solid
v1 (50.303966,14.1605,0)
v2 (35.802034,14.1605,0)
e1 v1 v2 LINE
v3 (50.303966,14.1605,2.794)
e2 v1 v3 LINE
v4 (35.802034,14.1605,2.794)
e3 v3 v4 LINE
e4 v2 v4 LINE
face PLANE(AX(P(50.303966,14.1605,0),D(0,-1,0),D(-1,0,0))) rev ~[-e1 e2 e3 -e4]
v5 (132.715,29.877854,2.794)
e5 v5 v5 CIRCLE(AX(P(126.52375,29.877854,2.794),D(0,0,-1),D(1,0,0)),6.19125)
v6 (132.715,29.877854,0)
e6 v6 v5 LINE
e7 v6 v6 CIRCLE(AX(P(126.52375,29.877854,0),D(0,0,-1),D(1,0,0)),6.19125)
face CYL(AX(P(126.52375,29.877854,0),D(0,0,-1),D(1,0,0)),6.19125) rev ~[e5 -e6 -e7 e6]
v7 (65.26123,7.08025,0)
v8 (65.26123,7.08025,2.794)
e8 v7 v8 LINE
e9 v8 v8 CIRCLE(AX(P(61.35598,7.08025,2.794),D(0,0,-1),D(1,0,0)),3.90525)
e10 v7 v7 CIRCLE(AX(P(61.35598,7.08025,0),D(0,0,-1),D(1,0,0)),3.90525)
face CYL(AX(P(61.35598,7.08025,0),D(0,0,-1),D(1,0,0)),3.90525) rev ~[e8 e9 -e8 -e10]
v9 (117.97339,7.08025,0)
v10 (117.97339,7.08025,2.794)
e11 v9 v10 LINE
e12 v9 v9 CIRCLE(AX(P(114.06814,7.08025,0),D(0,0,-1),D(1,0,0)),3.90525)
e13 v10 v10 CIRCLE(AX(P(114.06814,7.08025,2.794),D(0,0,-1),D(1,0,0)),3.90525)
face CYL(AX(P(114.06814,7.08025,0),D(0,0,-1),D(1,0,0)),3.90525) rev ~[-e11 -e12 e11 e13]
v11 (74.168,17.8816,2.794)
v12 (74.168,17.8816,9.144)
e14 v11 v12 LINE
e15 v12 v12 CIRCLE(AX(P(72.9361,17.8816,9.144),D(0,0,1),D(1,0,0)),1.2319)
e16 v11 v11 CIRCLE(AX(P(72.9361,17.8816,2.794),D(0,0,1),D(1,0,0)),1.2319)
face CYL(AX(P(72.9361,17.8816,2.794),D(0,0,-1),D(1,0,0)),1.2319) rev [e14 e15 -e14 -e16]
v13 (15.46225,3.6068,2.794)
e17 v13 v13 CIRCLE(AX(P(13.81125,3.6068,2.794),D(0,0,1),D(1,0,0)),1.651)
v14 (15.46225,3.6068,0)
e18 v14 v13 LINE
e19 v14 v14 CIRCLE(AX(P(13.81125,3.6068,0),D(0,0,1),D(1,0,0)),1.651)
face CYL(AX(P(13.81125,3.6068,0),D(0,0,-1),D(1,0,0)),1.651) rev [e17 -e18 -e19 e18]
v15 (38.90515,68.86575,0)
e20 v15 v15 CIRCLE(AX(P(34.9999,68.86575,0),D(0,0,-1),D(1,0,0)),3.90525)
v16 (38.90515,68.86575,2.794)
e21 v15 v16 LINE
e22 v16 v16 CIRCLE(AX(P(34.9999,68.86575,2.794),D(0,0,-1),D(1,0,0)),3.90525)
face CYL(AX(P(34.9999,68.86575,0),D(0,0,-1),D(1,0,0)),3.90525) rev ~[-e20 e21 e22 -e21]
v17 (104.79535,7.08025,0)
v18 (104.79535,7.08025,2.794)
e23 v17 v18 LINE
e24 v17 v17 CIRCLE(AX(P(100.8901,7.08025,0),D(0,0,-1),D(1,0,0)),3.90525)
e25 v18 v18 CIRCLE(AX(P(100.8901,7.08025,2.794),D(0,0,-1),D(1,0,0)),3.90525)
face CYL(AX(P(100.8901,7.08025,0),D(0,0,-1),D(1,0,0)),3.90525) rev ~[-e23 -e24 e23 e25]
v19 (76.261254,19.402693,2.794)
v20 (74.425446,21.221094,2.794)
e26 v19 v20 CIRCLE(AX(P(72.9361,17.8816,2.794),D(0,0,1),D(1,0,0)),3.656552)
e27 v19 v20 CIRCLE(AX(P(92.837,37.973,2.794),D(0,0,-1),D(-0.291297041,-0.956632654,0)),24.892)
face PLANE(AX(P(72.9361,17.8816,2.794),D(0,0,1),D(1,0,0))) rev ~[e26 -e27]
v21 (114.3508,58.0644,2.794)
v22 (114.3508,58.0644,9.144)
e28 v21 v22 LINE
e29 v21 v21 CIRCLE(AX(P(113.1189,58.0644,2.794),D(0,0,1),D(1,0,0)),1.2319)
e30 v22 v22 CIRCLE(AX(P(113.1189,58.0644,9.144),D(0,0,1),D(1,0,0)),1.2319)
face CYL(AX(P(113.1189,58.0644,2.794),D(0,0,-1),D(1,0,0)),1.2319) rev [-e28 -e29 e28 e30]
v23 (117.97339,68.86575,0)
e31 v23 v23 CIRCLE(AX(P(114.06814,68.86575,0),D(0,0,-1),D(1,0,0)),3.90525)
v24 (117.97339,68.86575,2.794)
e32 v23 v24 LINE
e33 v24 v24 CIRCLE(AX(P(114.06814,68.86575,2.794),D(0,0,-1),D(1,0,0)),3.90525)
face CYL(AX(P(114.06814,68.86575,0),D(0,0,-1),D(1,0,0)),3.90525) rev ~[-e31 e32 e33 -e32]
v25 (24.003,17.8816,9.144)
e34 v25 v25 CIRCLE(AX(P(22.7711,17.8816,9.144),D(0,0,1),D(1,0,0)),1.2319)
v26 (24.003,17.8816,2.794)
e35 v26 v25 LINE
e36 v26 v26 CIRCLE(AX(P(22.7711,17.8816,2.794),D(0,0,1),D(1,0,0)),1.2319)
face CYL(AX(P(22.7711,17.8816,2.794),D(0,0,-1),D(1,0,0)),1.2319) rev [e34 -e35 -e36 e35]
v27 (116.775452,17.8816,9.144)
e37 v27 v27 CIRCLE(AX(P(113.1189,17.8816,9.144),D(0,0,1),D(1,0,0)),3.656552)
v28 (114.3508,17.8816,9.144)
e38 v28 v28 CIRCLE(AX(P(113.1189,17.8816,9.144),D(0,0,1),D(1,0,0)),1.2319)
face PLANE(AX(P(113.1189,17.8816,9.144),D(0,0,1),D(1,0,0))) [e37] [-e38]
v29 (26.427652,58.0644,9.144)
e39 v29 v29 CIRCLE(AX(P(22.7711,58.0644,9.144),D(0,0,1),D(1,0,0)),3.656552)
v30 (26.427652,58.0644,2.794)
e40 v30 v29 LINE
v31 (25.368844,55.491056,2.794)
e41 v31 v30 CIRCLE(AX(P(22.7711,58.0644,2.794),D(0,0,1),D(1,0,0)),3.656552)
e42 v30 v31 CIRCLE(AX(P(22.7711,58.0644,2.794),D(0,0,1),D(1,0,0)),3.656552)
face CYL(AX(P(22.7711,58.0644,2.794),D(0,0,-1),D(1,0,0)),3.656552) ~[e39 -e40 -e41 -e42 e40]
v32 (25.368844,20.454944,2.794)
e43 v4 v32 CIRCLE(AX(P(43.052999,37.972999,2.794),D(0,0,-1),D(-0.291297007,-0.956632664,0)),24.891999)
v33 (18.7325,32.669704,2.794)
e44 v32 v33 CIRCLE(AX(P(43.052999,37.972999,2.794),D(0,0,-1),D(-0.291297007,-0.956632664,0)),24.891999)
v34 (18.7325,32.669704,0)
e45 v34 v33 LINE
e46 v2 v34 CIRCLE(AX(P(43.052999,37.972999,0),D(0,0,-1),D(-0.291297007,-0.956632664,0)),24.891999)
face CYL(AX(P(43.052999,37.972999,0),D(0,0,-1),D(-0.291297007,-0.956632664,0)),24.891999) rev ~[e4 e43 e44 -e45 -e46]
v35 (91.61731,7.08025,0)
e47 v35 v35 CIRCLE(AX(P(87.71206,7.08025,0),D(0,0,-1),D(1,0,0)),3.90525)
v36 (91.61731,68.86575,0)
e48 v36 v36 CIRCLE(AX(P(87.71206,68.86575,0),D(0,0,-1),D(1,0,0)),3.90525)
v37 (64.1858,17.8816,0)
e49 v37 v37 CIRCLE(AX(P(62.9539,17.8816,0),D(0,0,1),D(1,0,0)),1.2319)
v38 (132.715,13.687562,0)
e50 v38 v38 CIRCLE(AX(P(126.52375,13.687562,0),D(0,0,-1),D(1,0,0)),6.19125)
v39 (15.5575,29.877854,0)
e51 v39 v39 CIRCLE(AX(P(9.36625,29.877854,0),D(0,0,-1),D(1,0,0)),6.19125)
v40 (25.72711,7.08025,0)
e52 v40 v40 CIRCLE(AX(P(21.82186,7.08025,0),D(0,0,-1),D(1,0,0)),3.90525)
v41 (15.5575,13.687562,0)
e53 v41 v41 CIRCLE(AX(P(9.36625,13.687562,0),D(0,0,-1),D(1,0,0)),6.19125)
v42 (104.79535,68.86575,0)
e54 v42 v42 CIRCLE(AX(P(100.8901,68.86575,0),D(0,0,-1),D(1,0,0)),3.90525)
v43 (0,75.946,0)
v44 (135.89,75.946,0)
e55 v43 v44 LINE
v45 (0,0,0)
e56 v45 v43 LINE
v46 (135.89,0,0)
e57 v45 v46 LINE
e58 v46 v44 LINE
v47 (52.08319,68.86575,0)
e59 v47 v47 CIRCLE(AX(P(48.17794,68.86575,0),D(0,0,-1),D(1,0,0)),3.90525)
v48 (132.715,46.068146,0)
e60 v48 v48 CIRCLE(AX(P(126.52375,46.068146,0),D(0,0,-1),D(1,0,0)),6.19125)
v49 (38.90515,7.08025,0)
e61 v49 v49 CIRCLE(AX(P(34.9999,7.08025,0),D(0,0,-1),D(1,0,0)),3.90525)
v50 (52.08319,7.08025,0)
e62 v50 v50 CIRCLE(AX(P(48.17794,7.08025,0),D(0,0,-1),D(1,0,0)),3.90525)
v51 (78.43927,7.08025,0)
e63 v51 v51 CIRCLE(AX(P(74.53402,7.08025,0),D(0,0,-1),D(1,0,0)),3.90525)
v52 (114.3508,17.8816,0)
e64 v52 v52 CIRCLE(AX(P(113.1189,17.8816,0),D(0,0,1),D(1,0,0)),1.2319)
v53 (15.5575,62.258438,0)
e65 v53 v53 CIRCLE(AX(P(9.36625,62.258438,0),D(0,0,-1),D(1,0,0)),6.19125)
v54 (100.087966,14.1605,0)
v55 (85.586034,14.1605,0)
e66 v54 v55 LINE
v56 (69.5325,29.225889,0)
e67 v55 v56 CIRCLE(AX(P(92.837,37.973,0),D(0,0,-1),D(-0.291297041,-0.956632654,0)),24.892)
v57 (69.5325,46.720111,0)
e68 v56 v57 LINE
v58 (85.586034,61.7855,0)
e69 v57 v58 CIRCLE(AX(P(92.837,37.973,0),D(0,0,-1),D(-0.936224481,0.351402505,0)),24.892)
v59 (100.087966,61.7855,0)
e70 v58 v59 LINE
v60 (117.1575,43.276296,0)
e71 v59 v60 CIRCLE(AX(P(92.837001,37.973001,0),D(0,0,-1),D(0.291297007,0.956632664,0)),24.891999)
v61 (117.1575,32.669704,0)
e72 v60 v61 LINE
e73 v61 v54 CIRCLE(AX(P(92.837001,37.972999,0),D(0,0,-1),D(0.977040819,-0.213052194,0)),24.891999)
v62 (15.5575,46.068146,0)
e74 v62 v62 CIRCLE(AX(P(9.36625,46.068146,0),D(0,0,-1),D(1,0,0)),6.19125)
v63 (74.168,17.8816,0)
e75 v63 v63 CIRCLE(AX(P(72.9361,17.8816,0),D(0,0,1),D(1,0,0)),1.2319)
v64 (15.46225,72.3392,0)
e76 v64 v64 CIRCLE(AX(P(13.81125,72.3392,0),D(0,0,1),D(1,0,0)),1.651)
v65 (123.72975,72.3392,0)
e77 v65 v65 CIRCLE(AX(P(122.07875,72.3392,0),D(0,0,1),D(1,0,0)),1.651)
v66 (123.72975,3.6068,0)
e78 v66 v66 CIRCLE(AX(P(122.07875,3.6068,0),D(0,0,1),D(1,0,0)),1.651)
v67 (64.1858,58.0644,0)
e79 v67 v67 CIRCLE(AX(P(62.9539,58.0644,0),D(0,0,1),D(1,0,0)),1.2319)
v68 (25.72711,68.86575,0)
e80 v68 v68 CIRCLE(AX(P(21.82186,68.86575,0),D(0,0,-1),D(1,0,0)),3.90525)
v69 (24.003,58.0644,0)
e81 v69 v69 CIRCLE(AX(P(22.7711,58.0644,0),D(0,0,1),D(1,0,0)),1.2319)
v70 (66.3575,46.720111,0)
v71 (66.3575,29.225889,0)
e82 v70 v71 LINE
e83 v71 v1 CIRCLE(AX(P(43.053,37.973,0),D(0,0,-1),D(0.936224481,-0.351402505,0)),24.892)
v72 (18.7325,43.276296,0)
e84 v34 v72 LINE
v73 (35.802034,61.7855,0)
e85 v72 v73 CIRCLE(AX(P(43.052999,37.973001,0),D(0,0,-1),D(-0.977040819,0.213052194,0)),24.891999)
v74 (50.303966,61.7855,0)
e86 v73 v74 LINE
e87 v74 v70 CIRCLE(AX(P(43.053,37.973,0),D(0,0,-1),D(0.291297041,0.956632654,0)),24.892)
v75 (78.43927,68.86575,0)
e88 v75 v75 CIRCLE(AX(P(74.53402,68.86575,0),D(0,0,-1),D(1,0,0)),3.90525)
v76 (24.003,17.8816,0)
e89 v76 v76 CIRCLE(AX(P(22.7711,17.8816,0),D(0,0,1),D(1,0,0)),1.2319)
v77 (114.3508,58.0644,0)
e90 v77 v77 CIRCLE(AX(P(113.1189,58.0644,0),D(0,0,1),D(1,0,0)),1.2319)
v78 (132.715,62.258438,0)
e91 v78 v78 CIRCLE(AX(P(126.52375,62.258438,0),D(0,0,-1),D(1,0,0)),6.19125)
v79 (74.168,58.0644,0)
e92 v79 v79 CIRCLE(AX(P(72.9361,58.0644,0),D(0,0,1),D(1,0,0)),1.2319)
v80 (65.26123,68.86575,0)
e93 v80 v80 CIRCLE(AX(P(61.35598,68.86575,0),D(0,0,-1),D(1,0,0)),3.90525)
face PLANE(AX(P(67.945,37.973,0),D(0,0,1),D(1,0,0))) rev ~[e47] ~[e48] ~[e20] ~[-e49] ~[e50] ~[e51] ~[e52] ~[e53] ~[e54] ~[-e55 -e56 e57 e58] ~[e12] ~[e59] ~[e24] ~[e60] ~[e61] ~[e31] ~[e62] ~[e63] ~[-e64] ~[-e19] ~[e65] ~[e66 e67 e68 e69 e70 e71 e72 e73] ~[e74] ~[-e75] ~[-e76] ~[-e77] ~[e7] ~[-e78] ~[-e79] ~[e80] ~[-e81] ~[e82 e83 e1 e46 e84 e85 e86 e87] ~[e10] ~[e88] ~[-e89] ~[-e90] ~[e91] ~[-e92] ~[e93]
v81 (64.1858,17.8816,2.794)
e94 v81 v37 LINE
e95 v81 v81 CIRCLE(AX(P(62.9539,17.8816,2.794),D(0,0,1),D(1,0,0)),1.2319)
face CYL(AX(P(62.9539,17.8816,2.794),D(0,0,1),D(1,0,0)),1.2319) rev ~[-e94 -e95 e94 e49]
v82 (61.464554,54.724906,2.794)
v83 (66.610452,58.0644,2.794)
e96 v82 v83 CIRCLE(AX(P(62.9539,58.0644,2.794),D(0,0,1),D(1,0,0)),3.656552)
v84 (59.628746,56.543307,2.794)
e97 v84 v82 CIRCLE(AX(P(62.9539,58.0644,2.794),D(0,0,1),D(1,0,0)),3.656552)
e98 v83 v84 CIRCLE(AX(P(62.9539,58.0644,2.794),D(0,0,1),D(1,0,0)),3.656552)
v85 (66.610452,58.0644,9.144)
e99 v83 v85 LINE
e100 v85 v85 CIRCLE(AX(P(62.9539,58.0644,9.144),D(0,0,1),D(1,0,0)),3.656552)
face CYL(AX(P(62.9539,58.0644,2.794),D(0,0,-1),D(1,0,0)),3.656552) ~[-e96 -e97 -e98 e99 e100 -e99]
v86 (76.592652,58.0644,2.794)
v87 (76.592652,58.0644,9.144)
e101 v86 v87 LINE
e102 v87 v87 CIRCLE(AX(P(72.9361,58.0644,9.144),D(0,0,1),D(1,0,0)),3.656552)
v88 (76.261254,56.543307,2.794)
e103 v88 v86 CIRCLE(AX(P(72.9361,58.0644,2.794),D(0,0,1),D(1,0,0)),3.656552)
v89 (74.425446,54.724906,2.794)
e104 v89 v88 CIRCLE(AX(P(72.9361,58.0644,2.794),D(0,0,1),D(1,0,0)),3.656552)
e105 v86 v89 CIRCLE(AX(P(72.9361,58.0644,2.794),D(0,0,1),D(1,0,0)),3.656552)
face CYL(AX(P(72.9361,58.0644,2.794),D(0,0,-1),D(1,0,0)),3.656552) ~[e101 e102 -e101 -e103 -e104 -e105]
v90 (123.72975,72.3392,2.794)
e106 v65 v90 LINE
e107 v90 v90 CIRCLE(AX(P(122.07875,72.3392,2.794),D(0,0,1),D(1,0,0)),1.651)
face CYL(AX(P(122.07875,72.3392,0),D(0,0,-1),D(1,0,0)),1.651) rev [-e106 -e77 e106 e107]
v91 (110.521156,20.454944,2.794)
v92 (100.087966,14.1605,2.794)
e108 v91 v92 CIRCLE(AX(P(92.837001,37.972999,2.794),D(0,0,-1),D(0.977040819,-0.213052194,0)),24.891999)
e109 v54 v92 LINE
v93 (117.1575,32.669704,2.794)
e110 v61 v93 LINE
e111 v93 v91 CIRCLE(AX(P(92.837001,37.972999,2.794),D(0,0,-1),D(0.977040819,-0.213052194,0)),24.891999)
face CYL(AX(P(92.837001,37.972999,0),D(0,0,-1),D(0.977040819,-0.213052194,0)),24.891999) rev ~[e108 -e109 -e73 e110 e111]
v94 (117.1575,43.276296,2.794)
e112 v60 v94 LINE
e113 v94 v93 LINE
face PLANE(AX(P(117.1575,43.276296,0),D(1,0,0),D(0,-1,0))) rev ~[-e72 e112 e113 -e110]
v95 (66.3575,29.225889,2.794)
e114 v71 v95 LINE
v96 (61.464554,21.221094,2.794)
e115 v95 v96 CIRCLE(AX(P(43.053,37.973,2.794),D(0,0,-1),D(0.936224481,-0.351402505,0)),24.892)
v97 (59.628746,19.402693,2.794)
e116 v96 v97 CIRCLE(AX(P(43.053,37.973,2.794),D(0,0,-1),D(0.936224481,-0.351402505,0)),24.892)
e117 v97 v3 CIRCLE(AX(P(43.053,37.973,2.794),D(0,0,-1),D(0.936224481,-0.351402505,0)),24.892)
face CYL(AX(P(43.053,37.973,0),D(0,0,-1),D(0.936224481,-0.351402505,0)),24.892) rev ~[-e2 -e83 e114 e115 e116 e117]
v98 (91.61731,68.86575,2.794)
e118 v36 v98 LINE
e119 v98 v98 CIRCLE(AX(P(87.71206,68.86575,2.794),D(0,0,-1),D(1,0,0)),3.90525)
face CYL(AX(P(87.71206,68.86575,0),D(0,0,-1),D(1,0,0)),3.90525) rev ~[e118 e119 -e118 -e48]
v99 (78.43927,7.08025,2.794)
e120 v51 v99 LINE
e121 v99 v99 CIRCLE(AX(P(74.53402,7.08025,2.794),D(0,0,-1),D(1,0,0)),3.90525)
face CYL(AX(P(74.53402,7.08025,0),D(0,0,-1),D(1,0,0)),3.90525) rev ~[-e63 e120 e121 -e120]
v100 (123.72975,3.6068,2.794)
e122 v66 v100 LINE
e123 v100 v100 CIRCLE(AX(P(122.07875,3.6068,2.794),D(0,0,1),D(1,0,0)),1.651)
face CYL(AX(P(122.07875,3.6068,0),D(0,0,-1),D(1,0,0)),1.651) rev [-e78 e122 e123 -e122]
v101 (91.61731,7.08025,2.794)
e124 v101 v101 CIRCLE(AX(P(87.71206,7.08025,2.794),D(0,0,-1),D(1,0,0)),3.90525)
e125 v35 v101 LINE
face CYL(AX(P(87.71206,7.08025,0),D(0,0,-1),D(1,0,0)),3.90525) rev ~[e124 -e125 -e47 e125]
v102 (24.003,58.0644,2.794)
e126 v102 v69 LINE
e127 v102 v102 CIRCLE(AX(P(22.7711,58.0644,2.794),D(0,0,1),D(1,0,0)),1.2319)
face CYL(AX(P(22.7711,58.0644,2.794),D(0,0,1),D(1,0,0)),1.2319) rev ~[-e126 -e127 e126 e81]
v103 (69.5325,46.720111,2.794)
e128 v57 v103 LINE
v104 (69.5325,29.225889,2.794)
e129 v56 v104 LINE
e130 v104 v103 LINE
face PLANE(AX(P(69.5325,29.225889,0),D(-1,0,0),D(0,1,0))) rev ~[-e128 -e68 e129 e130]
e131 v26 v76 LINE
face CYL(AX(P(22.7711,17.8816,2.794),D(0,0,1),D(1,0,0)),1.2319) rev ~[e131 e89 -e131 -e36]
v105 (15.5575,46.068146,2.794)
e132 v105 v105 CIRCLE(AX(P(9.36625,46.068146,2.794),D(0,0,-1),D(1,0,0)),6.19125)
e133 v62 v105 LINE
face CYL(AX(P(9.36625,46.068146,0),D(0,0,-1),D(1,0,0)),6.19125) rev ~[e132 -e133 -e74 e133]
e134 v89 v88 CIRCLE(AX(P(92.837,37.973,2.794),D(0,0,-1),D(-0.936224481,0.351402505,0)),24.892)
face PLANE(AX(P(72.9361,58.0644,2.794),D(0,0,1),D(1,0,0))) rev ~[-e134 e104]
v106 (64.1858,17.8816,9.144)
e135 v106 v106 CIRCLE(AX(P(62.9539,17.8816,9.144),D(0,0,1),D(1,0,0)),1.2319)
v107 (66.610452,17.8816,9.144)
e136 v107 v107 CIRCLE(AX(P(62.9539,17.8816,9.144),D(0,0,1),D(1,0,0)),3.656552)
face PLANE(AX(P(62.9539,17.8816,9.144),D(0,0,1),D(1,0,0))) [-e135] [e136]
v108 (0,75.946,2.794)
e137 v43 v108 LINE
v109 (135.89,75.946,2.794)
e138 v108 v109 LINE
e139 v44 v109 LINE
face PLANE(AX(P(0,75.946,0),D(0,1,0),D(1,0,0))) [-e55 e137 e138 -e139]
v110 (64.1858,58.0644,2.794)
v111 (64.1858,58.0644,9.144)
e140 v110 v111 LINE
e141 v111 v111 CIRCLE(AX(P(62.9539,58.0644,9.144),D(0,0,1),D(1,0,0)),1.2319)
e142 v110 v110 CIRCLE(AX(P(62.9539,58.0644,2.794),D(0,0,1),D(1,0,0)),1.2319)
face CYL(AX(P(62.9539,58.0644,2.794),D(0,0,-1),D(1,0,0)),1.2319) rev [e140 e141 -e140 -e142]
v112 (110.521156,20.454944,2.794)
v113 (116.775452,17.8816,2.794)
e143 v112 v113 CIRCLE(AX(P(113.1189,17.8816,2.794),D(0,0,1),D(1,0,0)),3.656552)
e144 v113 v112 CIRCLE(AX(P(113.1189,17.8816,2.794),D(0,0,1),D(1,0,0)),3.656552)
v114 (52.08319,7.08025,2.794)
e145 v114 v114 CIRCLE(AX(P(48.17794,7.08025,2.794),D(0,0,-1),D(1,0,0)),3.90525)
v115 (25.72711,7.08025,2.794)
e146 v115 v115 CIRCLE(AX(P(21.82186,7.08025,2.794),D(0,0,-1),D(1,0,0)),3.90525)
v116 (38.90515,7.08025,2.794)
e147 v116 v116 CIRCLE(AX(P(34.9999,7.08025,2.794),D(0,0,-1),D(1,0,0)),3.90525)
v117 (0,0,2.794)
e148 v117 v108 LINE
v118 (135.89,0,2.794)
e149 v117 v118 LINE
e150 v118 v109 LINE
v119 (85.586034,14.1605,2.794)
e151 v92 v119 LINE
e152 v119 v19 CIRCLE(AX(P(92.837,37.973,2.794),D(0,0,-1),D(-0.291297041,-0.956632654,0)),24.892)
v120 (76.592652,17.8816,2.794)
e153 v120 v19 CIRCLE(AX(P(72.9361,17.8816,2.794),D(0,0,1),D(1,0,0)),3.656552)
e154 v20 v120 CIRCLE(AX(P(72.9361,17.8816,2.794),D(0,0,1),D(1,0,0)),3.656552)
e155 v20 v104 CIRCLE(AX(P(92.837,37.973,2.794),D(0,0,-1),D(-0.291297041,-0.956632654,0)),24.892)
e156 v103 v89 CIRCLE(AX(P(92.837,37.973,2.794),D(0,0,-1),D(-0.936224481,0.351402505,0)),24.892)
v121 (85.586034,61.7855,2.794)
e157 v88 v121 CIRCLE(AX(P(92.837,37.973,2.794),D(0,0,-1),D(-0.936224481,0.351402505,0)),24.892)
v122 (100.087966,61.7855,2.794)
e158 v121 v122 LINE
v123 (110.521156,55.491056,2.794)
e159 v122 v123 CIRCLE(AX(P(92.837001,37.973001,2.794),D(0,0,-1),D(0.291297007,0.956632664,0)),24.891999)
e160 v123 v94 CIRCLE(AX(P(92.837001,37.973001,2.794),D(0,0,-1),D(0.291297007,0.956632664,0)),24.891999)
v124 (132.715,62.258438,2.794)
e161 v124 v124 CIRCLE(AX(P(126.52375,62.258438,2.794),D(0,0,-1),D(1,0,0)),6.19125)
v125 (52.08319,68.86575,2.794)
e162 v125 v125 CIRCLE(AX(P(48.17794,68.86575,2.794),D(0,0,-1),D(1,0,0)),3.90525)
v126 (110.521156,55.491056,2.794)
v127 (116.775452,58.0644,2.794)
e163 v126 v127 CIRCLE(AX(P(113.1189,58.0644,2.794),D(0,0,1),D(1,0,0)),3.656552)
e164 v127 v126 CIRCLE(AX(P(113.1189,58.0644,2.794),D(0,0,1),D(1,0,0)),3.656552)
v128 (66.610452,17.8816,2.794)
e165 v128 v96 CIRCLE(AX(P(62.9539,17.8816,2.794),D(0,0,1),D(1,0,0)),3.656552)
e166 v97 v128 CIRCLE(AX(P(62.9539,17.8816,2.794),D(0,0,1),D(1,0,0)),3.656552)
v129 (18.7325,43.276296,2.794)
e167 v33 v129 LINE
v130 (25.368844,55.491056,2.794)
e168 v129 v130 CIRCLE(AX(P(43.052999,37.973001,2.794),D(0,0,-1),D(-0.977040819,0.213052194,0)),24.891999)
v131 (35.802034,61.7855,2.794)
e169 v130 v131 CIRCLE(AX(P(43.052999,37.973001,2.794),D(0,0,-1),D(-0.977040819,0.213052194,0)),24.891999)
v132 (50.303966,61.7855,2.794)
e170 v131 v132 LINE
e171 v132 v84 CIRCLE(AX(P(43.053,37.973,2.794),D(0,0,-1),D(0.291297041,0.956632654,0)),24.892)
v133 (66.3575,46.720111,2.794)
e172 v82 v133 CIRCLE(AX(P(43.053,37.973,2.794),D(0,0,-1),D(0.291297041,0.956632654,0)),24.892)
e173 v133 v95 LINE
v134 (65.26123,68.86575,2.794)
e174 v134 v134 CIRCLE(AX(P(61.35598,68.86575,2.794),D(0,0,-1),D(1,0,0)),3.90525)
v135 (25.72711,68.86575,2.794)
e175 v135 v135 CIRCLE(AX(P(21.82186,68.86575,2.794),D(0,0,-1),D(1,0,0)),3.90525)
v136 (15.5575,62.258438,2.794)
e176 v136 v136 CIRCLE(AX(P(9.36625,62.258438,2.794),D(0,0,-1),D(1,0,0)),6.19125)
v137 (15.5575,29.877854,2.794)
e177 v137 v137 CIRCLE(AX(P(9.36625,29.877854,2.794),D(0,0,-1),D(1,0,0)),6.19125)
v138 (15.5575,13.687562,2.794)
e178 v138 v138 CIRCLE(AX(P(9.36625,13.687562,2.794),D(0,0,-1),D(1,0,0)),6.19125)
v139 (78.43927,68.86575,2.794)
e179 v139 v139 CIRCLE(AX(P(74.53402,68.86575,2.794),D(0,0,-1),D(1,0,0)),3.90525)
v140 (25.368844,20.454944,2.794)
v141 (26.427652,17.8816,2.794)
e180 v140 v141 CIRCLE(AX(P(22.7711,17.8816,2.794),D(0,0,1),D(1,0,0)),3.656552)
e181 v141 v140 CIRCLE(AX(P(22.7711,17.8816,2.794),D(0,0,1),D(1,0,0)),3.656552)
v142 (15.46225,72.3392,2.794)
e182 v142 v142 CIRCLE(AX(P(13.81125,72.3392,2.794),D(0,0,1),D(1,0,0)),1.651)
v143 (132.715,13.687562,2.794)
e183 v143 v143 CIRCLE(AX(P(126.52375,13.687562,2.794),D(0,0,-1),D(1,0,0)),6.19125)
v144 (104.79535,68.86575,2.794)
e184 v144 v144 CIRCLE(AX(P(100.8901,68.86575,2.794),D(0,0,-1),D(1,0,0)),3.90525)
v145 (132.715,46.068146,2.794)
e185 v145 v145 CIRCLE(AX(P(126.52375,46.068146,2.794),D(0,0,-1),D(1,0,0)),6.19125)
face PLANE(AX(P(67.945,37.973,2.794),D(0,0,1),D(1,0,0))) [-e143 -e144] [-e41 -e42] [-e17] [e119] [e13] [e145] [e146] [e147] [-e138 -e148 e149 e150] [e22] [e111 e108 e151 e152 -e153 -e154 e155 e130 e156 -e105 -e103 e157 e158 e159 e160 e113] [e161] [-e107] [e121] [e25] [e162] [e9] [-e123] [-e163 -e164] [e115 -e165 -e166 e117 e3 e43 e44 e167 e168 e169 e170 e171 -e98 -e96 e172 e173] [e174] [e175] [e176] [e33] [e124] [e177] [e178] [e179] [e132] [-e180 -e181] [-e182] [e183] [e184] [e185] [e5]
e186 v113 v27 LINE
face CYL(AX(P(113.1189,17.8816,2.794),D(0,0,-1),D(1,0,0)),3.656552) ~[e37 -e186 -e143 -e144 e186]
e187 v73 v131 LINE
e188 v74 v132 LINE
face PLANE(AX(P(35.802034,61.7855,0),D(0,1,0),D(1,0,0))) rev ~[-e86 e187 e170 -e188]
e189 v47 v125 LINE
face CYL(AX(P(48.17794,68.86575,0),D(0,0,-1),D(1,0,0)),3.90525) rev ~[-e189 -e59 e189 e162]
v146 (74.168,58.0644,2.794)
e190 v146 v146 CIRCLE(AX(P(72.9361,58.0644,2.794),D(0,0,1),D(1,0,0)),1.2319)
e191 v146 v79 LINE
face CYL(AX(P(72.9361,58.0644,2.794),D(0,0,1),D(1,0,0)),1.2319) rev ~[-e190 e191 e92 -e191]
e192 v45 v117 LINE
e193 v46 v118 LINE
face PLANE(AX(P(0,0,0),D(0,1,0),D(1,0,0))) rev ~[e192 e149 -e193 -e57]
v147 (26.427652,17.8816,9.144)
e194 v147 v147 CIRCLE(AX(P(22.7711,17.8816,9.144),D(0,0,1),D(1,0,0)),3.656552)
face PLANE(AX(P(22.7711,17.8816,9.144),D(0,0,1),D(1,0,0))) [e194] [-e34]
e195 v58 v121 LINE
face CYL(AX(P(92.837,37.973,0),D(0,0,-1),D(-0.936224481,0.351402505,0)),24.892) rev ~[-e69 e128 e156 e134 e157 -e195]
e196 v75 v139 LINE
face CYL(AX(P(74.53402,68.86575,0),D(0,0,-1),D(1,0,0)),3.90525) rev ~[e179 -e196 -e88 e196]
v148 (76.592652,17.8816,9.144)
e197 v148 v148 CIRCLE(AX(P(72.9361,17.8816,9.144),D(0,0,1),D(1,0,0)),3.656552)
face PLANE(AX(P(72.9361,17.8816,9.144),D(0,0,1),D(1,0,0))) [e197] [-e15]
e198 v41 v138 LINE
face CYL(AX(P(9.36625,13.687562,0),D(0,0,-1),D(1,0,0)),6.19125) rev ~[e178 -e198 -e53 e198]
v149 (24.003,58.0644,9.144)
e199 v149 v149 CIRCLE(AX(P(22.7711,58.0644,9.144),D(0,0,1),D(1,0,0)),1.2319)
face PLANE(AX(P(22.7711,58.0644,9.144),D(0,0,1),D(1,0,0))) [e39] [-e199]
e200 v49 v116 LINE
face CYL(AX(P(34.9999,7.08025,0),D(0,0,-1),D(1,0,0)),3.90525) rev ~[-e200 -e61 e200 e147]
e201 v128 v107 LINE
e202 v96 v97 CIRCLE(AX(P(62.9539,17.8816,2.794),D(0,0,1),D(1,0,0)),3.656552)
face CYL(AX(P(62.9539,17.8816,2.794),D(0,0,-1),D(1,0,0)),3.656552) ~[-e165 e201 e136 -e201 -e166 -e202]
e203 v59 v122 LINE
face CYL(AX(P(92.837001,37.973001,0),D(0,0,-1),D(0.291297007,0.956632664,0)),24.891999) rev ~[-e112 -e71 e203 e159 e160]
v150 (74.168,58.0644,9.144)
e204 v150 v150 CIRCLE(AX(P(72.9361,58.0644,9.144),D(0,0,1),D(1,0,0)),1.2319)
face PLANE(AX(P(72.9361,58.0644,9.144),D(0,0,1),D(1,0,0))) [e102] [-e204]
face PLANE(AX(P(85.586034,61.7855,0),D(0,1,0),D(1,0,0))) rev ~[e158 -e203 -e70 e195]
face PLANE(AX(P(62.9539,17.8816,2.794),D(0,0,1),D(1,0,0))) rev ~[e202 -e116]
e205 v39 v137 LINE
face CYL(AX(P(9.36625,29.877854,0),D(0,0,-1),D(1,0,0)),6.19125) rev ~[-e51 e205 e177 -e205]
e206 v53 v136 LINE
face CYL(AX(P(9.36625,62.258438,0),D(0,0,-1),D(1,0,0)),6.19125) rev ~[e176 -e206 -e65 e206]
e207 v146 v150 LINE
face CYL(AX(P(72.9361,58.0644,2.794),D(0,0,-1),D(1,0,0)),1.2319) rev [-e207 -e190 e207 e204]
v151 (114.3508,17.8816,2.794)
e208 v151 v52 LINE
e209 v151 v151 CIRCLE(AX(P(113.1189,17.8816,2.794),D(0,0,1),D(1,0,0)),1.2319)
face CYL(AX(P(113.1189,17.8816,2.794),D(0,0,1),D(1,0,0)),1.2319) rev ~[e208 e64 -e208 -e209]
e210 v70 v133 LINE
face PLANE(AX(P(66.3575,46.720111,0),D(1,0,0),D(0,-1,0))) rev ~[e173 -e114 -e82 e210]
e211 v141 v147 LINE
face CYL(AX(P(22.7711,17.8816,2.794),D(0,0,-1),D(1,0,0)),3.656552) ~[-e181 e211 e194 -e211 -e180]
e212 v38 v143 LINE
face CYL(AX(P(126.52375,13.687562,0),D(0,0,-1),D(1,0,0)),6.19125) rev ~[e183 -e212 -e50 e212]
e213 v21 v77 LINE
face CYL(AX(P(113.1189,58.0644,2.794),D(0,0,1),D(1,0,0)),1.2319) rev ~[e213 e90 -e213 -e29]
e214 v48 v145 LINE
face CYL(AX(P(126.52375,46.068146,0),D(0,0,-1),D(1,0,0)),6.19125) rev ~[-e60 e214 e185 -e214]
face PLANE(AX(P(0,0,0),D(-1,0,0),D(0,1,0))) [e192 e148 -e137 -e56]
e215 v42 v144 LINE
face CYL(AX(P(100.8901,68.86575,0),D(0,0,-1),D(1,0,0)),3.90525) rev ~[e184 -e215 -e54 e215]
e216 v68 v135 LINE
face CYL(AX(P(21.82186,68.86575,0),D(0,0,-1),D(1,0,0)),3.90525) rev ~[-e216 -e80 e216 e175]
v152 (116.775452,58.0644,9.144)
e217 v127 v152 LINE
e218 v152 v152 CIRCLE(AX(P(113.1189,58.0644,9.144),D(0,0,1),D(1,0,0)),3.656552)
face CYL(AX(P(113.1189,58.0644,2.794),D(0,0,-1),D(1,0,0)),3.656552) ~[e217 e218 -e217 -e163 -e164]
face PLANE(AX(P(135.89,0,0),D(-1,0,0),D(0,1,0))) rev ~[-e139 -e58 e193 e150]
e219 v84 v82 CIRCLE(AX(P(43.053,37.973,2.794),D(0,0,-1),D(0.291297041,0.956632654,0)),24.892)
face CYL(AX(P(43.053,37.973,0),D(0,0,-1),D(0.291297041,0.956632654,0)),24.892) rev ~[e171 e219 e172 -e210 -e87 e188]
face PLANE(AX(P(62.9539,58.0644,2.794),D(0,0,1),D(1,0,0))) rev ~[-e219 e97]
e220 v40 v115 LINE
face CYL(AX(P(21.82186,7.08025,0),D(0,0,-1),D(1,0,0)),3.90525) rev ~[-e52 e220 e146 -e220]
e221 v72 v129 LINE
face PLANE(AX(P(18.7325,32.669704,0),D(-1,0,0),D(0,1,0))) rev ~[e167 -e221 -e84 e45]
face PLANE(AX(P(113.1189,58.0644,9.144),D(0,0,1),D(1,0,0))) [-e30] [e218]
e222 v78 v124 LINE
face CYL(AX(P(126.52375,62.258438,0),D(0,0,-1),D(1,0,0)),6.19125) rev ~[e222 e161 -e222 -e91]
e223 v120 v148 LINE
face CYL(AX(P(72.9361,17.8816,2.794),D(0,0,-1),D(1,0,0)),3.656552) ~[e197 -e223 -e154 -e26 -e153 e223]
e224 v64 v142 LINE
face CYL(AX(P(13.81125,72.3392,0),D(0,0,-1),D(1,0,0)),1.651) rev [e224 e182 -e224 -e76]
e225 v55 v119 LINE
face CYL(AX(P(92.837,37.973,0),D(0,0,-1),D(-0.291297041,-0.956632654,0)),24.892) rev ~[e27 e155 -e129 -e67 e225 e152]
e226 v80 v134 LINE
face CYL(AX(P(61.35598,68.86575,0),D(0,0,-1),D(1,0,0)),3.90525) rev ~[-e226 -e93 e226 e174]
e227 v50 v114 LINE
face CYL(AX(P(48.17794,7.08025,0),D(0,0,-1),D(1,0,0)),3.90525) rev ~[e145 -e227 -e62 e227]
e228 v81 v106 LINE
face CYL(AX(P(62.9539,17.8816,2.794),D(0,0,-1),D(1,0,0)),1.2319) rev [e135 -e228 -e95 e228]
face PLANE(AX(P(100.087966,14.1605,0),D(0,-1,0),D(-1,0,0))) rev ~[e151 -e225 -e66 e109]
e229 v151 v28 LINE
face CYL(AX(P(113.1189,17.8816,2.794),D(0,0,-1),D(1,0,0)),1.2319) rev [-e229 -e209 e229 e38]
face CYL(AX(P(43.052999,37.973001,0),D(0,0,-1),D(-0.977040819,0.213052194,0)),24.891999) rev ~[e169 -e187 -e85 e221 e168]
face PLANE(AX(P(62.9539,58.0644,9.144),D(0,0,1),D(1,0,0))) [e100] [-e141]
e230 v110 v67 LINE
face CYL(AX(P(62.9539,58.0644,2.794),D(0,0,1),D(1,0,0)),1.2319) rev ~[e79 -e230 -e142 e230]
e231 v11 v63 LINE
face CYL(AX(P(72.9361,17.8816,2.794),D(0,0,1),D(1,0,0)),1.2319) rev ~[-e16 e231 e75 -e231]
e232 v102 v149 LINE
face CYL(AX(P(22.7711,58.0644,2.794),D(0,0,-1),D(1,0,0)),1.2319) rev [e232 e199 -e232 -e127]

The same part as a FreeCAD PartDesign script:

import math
import FreeCAD as App
import Part
import Sketcher
from FreeCAD import Vector
Q = App.Units.Quantity


def add_polygon(sketch, points):
    """Adds a closed chain of lines whose ends are joined by coincident constraints."""
    first, n = sketch.GeometryCount, len(points)
    for a, b in zip(points, points[1:] + points[:1]):
        sketch.addGeometry(Part.LineSegment(App.Vector(*a, 0), App.Vector(*b, 0)), False)
    for i in range(n):
        sketch.addConstraint(Sketcher.Constraint("Coincident", first + i, 2, first + (i + 1) % n, 1))

doc = App.newDocument("Part")
body = doc.addObject("PartDesign::Body", "Body")

# Sketch on XY plane
sketch1 = body.newObject("Sketcher::SketchObject", "Sketch")
sketch1.AttachmentSupport = (doc.getObject("XY_Plane"), [""])
sketch1.MapMode = "FlatFace"
add_polygon(sketch1, [(0, 75.9), (0, 0), (135.9, 0), (135.9, 75.9)])  # lines 0-3
sketch1.addGeometry(Part.Circle(Vector(13.8, 3.6, 0), Vector(0, 0, 1), 1.7), False)  # 4
sketch1.addGeometry(Part.Circle(Vector(122.1, 3.6, 0), Vector(0, 0, 1), 1.7), False)  # 5
sketch1.addGeometry(Part.LineSegment(Vector(18.7, 32.7, 0), Vector(18.7, 43.3, 0)), False)  # 6
sketch1.addGeometry(Part.ArcOfCircle(Part.Circle(Vector(43.1, 38, 0), Vector(0, 0, 1), 24.9), math.radians(107), math.radians(168)), False)  # 7
sketch1.addGeometry(Part.LineSegment(Vector(35.8, 61.8, 0), Vector(50.3, 61.8, 0)), False)  # 8
sketch1.addGeometry(Part.ArcOfCircle(Part.Circle(Vector(43.1, 38, 0), Vector(0, 0, 1), 24.9), math.radians(21), math.radians(73)), False)  # 9
sketch1.addGeometry(Part.LineSegment(Vector(66.4, 46.7, 0), Vector(66.4, 29.2, 0)), False)  # 10
sketch1.addGeometry(Part.ArcOfCircle(Part.Circle(Vector(43.1, 38, 0), Vector(0, 0, 1), 24.9), math.radians(-73), math.radians(-21)), False)  # 11
sketch1.addGeometry(Part.LineSegment(Vector(50.3, 14.2, 0), Vector(35.8, 14.2, 0)), False)  # 12
sketch1.addGeometry(Part.ArcOfCircle(Part.Circle(Vector(43.1, 38, 0), Vector(0, 0, 1), 24.9), math.radians(-168), math.radians(-107)), False)  # 13
sketch1.addGeometry(Part.Circle(Vector(13.8, 72.3, 0), Vector(0, 0, 1), 1.7), False)  # 14
sketch1.addGeometry(Part.LineSegment(Vector(85.6, 61.8, 0), Vector(100.1, 61.8, 0)), False)  # 15
sketch1.addGeometry(Part.ArcOfCircle(Part.Circle(Vector(92.8, 38, 0), Vector(0, 0, 1), 24.9), math.radians(12), math.radians(73)), False)  # 16
sketch1.addGeometry(Part.LineSegment(Vector(117.2, 43.3, 0), Vector(117.2, 32.7, 0)), False)  # 17
sketch1.addGeometry(Part.ArcOfCircle(Part.Circle(Vector(92.8, 38, 0), Vector(0, 0, 1), 24.9), math.radians(-73), math.radians(-12)), False)  # 18
sketch1.addGeometry(Part.LineSegment(Vector(100.1, 14.2, 0), Vector(85.6, 14.2, 0)), False)  # 19
sketch1.addGeometry(Part.ArcOfCircle(Part.Circle(Vector(92.8, 38, 0), Vector(0, 0, 1), 24.9), math.radians(-159), math.radians(-107)), False)  # 20
sketch1.addGeometry(Part.LineSegment(Vector(69.5, 29.2, 0), Vector(69.5, 46.7, 0)), False)  # 21
sketch1.addGeometry(Part.ArcOfCircle(Part.Circle(Vector(92.8, 38, 0), Vector(0, 0, 1), 24.9), math.radians(107), math.radians(159)), False)  # 22
sketch1.addGeometry(Part.Circle(Vector(122.1, 72.3, 0), Vector(0, 0, 1), 1.7), False)  # 23
sketch1.addConstraint(Sketcher.Constraint("Coincident", 6, 2, 7, 2))
sketch1.addConstraint(Sketcher.Constraint("Coincident", 7, 1, 8, 1))
sketch1.addConstraint(Sketcher.Constraint("Coincident", 8, 2, 9, 2))
sketch1.addConstraint(Sketcher.Constraint("Coincident", 9, 1, 10, 1))
sketch1.addConstraint(Sketcher.Constraint("Coincident", 10, 2, 11, 2))
sketch1.addConstraint(Sketcher.Constraint("Coincident", 11, 1, 12, 1))
sketch1.addConstraint(Sketcher.Constraint("Coincident", 12, 2, 13, 2))
sketch1.addConstraint(Sketcher.Constraint("Coincident", 13, 1, 6, 1))
sketch1.addConstraint(Sketcher.Constraint("Coincident", 15, 2, 16, 2))
sketch1.addConstraint(Sketcher.Constraint("Coincident", 16, 1, 17, 1))
sketch1.addConstraint(Sketcher.Constraint("Coincident", 17, 2, 18, 2))
sketch1.addConstraint(Sketcher.Constraint("Coincident", 18, 1, 19, 1))
sketch1.addConstraint(Sketcher.Constraint("Coincident", 19, 2, 20, 2))
sketch1.addConstraint(Sketcher.Constraint("Coincident", 20, 1, 21, 1))
sketch1.addConstraint(Sketcher.Constraint("Coincident", 21, 2, 22, 2))
sketch1.addConstraint(Sketcher.Constraint("Coincident", 22, 1, 15, 1))
sketch1.addConstraint(Sketcher.Constraint("Vertical", 0))
sketch1.addConstraint(Sketcher.Constraint("Horizontal", 1))
sketch1.addConstraint(Sketcher.Constraint("Vertical", 2))
sketch1.addConstraint(Sketcher.Constraint("Horizontal", 3))
sketch1.addConstraint(Sketcher.Constraint("Vertical", 6))
sketch1.addConstraint(Sketcher.Constraint("Horizontal", 8))
sketch1.addConstraint(Sketcher.Constraint("Vertical", 10))
sketch1.addConstraint(Sketcher.Constraint("Horizontal", 12))
sketch1.addConstraint(Sketcher.Constraint("Horizontal", 15))
sketch1.addConstraint(Sketcher.Constraint("Vertical", 17))
sketch1.addConstraint(Sketcher.Constraint("Horizontal", 19))
sketch1.addConstraint(Sketcher.Constraint("Vertical", 21))
sketch1.addConstraint(Sketcher.Constraint("Coincident", 0, 2, -1, 1))
sketch1.addConstraint(Sketcher.Constraint("Coincident", 9, 3, 7, 3))
sketch1.addConstraint(Sketcher.Constraint("Coincident", 11, 3, 7, 3))
sketch1.addConstraint(Sketcher.Constraint("Coincident", 13, 3, 7, 3))
sketch1.addConstraint(Sketcher.Constraint("Coincident", 18, 3, 16, 3))
sketch1.addConstraint(Sketcher.Constraint("Coincident", 20, 3, 16, 3))
sketch1.addConstraint(Sketcher.Constraint("Coincident", 22, 3, 16, 3))
sketch1.addConstraint(Sketcher.Constraint("Equal", 4, 5))
sketch1.addConstraint(Sketcher.Constraint("Equal", 7, 9))
sketch1.addConstraint(Sketcher.Constraint("Equal", 9, 11))
sketch1.addConstraint(Sketcher.Constraint("Equal", 11, 13))
sketch1.addConstraint(Sketcher.Constraint("Equal", 5, 14))
sketch1.addConstraint(Sketcher.Constraint("Equal", 13, 16))
sketch1.addConstraint(Sketcher.Constraint("Equal", 16, 18))
sketch1.addConstraint(Sketcher.Constraint("Equal", 18, 20))
sketch1.addConstraint(Sketcher.Constraint("Equal", 20, 22))
sketch1.addConstraint(Sketcher.Constraint("Equal", 14, 23))
sketch1.addConstraint(Sketcher.Constraint("Horizontal", 4, 3, 5, 3))
sketch1.addConstraint(Sketcher.Constraint("Horizontal", 11, 3, 16, 3))
sketch1.addConstraint(Sketcher.Constraint("Horizontal", 14, 3, 23, 3))
sketch1.addConstraint(Sketcher.Constraint("Horizontal", 8, 2, 15, 2))
sketch1.addConstraint(Sketcher.Constraint("Horizontal", 6, 2, 16, 1))
sketch1.addConstraint(Sketcher.Constraint("Horizontal", 12, 2, 18, 1))
sketch1.addConstraint(Sketcher.Constraint("Horizontal", 10, 2, 20, 1))
sketch1.addConstraint(Sketcher.Constraint("Vertical", 4, 3, 14, 3))
sketch1.addConstraint(Sketcher.Constraint("Vertical", 5, 3, 23, 3))
sketch1.addConstraint(Sketcher.Constraint("Vertical", 8, 2, 11, 1))
sketch1.addConstraint(Sketcher.Constraint("Diameter", 4, Q("0.13 in")))
sketch1.addConstraint(Sketcher.Constraint("Radius", 7, Q("0.9799999 in")))
sketch1.addConstraint(Sketcher.Constraint("DistanceX", 1, 1, 1, 2, Q("5.35 in")))
sketch1.addConstraint(Sketcher.Constraint("DistanceY", 0, 2, 0, 1, Q("2.99 in")))
sketch1.addConstraint(Sketcher.Constraint("DistanceX", 11, 3, 16, 3, Q("1.9600001 in")))
sketch1.addConstraint(Sketcher.Constraint("DistanceY", -1, 1, 4, 3, Q("0.142 in")))
sketch1.addConstraint(Sketcher.Constraint("DistanceX", -1, 1, 7, 3, Q("1.6949999 in")))
sketch1.addConstraint(Sketcher.Constraint("DistanceY", -1, 1, 7, 3, Q("1.495 in")))
sketch1.addConstraint(Sketcher.Constraint("DistanceY", -1, 1, 14, 3, Q("2.848 in")))
sketch1.addConstraint(Sketcher.Constraint("DistanceY", 7, 3, 7, 1, Q("0.9375 in")))
sketch1.addConstraint(Sketcher.Constraint("DistanceX", 10, 2, 20, 1, Q("0.125 in")))
sketch1.addConstraint(Sketcher.Constraint("DistanceX", -1, 1, 6, 2, Q("0.7375 in")))
sketch1.addConstraint(Sketcher.Constraint("DistanceX", 4, 3, 5, 3, Q("4.2625 in")))
sketch1.addConstraint(Sketcher.Constraint("DistanceX", -1, 1, 4, 3, 13.81125))
pad1 = body.newObject("PartDesign::Pad", "Pad")
pad1.Profile = sketch1
pad1.Length = Q("0.11 in")

# Sketch on XY plane
sketch2 = body.newObject("Sketcher::SketchObject", "Sketch001")
sketch2.AttachmentSupport = (doc.getObject("XY_Plane"), [""])
sketch2.MapMode = "FlatFace"
sketch2.AttachmentOffset = App.Placement(Vector(0, 0, 0.11 * 25.4), App.Rotation())
sketch2.addGeometry(Part.Circle(Vector(22.8, 58.1, 0), Vector(0, 0, 1), 1.2), False)
sketch2.addGeometry(Part.Circle(Vector(63, 58.1, 0), Vector(0, 0, 1), 1.2), False)
sketch2.addGeometry(Part.Circle(Vector(72.9, 58.1, 0), Vector(0, 0, 1), 1.2), False)
sketch2.addGeometry(Part.Circle(Vector(113.1, 58.1, 0), Vector(0, 0, 1), 1.2), False)
sketch2.addGeometry(Part.Circle(Vector(113.1, 17.9, 0), Vector(0, 0, 1), 1.2), False)
sketch2.addGeometry(Part.Circle(Vector(72.9, 17.9, 0), Vector(0, 0, 1), 1.2), False)
sketch2.addGeometry(Part.Circle(Vector(63, 17.9, 0), Vector(0, 0, 1), 1.2), False)
sketch2.addGeometry(Part.Circle(Vector(22.8, 17.9, 0), Vector(0, 0, 1), 1.2), False)
sketch2.addConstraint(Sketcher.Constraint("Equal", 0, 1))
sketch2.addConstraint(Sketcher.Constraint("Equal", 1, 2))
sketch2.addConstraint(Sketcher.Constraint("Equal", 2, 3))
sketch2.addConstraint(Sketcher.Constraint("Equal", 3, 4))
sketch2.addConstraint(Sketcher.Constraint("Equal", 4, 5))
sketch2.addConstraint(Sketcher.Constraint("Equal", 5, 6))
sketch2.addConstraint(Sketcher.Constraint("Equal", 6, 7))
sketch2.addConstraint(Sketcher.Constraint("Horizontal", 0, 3, 1, 3))
sketch2.addConstraint(Sketcher.Constraint("Horizontal", 1, 3, 2, 3))
sketch2.addConstraint(Sketcher.Constraint("Horizontal", 2, 3, 3, 3))
sketch2.addConstraint(Sketcher.Constraint("Horizontal", 4, 3, 5, 3))
sketch2.addConstraint(Sketcher.Constraint("Horizontal", 5, 3, 6, 3))
sketch2.addConstraint(Sketcher.Constraint("Horizontal", 6, 3, 7, 3))
sketch2.addConstraint(Sketcher.Constraint("Vertical", 3, 3, 4, 3))
sketch2.addConstraint(Sketcher.Constraint("Vertical", 2, 3, 5, 3))
sketch2.addConstraint(Sketcher.Constraint("Vertical", 1, 3, 6, 3))
sketch2.addConstraint(Sketcher.Constraint("Vertical", 0, 3, 7, 3))
sketch2.addConstraint(Sketcher.Constraint("Diameter", 0, Q("0.097 in")))
sketch2.addConstraint(Sketcher.Constraint("DistanceY", -1, 1, 0, 3, Q("2.286 in")))
sketch2.addConstraint(Sketcher.Constraint("DistanceY", -1, 1, 4, 3, Q("0.704 in")))
sketch2.addConstraint(Sketcher.Constraint("DistanceX", 0, 3, 1, 3, Q("1.582 in")))
sketch2.addConstraint(Sketcher.Constraint("DistanceX", 1, 3, 2, 3, Q("0.393 in")))
sketch2.addConstraint(Sketcher.Constraint("DistanceX", 2, 3, 3, 3, Q("1.582 in")))
sketch2.addConstraint(Sketcher.Constraint("DistanceX", -1, 1, 0, 3, Q("0.8965 in")))
pocket1 = body.newObject("PartDesign::Pocket", "Pocket")
pocket1.Profile = sketch2
pocket1.Type = "ThroughAll"

# Sketch on XY plane
sketch3 = body.newObject("Sketcher::SketchObject", "Sketch002")
sketch3.AttachmentSupport = (doc.getObject("XY_Plane"), [""])
sketch3.MapMode = "FlatFace"
sketch3.AttachmentOffset = App.Placement(Vector(0, 0, 0.11 * 25.4), App.Rotation())
sketch3.addGeometry(Part.Circle(Vector(22.8, 58.1, 0), Vector(0, 0, 1), 3.7), False)
sketch3.addGeometry(Part.Circle(Vector(22.8, 58.1, 0), Vector(0, 0, 1), 1.2), False)
sketch3.addGeometry(Part.Circle(Vector(63, 58.1, 0), Vector(0, 0, 1), 3.7), False)
sketch3.addGeometry(Part.Circle(Vector(63, 58.1, 0), Vector(0, 0, 1), 1.2), False)
sketch3.addGeometry(Part.Circle(Vector(72.9, 58.1, 0), Vector(0, 0, 1), 3.7), False)
sketch3.addGeometry(Part.Circle(Vector(72.9, 58.1, 0), Vector(0, 0, 1), 1.2), False)
sketch3.addGeometry(Part.Circle(Vector(113.1, 58.1, 0), Vector(0, 0, 1), 3.7), False)
sketch3.addGeometry(Part.Circle(Vector(113.1, 58.1, 0), Vector(0, 0, 1), 1.2), False)
sketch3.addGeometry(Part.Circle(Vector(113.1, 17.9, 0), Vector(0, 0, 1), 3.7), False)
sketch3.addGeometry(Part.Circle(Vector(113.1, 17.9, 0), Vector(0, 0, 1), 1.2), False)
sketch3.addGeometry(Part.Circle(Vector(72.9, 17.9, 0), Vector(0, 0, 1), 3.7), False)
sketch3.addGeometry(Part.Circle(Vector(72.9, 17.9, 0), Vector(0, 0, 1), 1.2), False)
sketch3.addGeometry(Part.Circle(Vector(63, 17.9, 0), Vector(0, 0, 1), 3.7), False)
sketch3.addGeometry(Part.Circle(Vector(63, 17.9, 0), Vector(0, 0, 1), 1.2), False)
sketch3.addGeometry(Part.Circle(Vector(22.8, 17.9, 0), Vector(0, 0, 1), 3.7), False)
sketch3.addGeometry(Part.Circle(Vector(22.8, 17.9, 0), Vector(0, 0, 1), 1.2), False)
sketch3.addConstraint(Sketcher.Constraint("Coincident", 1, 3, 0, 3))
sketch3.addConstraint(Sketcher.Constraint("Coincident", 3, 3, 2, 3))
sketch3.addConstraint(Sketcher.Constraint("Coincident", 5, 3, 4, 3))
sketch3.addConstraint(Sketcher.Constraint("Coincident", 7, 3, 6, 3))
sketch3.addConstraint(Sketcher.Constraint("Coincident", 9, 3, 8, 3))
sketch3.addConstraint(Sketcher.Constraint("Coincident", 11, 3, 10, 3))
sketch3.addConstraint(Sketcher.Constraint("Coincident", 13, 3, 12, 3))
sketch3.addConstraint(Sketcher.Constraint("Coincident", 15, 3, 14, 3))
sketch3.addConstraint(Sketcher.Constraint("Equal", 0, 2))
sketch3.addConstraint(Sketcher.Constraint("Equal", 1, 3))
sketch3.addConstraint(Sketcher.Constraint("Equal", 2, 4))
sketch3.addConstraint(Sketcher.Constraint("Equal", 3, 5))
sketch3.addConstraint(Sketcher.Constraint("Equal", 4, 6))
sketch3.addConstraint(Sketcher.Constraint("Equal", 5, 7))
sketch3.addConstraint(Sketcher.Constraint("Equal", 6, 8))
sketch3.addConstraint(Sketcher.Constraint("Equal", 7, 9))
sketch3.addConstraint(Sketcher.Constraint("Equal", 8, 10))
sketch3.addConstraint(Sketcher.Constraint("Equal", 9, 11))
sketch3.addConstraint(Sketcher.Constraint("Equal", 10, 12))
sketch3.addConstraint(Sketcher.Constraint("Equal", 11, 13))
sketch3.addConstraint(Sketcher.Constraint("Equal", 12, 14))
sketch3.addConstraint(Sketcher.Constraint("Equal", 13, 15))
sketch3.addConstraint(Sketcher.Constraint("Horizontal", 1, 3, 2, 3))
sketch3.addConstraint(Sketcher.Constraint("Horizontal", 3, 3, 4, 3))
sketch3.addConstraint(Sketcher.Constraint("Horizontal", 5, 3, 6, 3))
sketch3.addConstraint(Sketcher.Constraint("Horizontal", 9, 3, 10, 3))
sketch3.addConstraint(Sketcher.Constraint("Horizontal", 11, 3, 12, 3))
sketch3.addConstraint(Sketcher.Constraint("Horizontal", 13, 3, 14, 3))
sketch3.addConstraint(Sketcher.Constraint("Vertical", 7, 3, 8, 3))
sketch3.addConstraint(Sketcher.Constraint("Vertical", 5, 3, 10, 3))
sketch3.addConstraint(Sketcher.Constraint("Vertical", 3, 3, 12, 3))
sketch3.addConstraint(Sketcher.Constraint("Vertical", 1, 3, 14, 3))
sketch3.addConstraint(Sketcher.Constraint("Diameter", 1, Q("0.097 in")))
sketch3.addConstraint(Sketcher.Constraint("DistanceY", -1, 1, 0, 3, Q("2.286 in")))
sketch3.addConstraint(Sketcher.Constraint("DistanceY", -1, 1, 8, 3, Q("0.704 in")))
sketch3.addConstraint(Sketcher.Constraint("DistanceX", 0, 3, 2, 3, Q("1.582 in")))
sketch3.addConstraint(Sketcher.Constraint("DistanceX", 2, 3, 4, 3, Q("0.393 in")))
sketch3.addConstraint(Sketcher.Constraint("DistanceX", 4, 3, 6, 3, Q("1.582 in")))
sketch3.addConstraint(Sketcher.Constraint("Diameter", 0, 7.313104))
sketch3.addConstraint(Sketcher.Constraint("DistanceX", -1, 1, 0, 3, Q("0.8965 in")))
pad2 = body.newObject("PartDesign::Pad", "Pad001")
pad2.Profile = sketch3
pad2.Length = Q("0.25 in")

# Sketch on XY plane
sketch4 = body.newObject("Sketcher::SketchObject", "Sketch003")
sketch4.AttachmentSupport = (doc.getObject("XY_Plane"), [""])
sketch4.MapMode = "FlatFace"
sketch4.addGeometry(Part.Circle(Vector(9.4, 62.3, 0), Vector(0, 0, 1), 6.2), False)
sketch4.addGeometry(Part.Circle(Vector(9.4, 46.1, 0), Vector(0, 0, 1), 6.2), False)
sketch4.addGeometry(Part.Circle(Vector(21.8, 68.9, 0), Vector(0, 0, 1), 3.9), False)
sketch4.addGeometry(Part.Circle(Vector(35, 68.9, 0), Vector(0, 0, 1), 3.9), False)
sketch4.addGeometry(Part.Circle(Vector(48.2, 68.9, 0), Vector(0, 0, 1), 3.9), False)
sketch4.addGeometry(Part.Circle(Vector(61.4, 68.9, 0), Vector(0, 0, 1), 3.9), False)
sketch4.addGeometry(Part.Circle(Vector(126.5, 46.1, 0), Vector(0, 0, 1), 6.2), False)
sketch4.addGeometry(Part.Circle(Vector(126.5, 62.3, 0), Vector(0, 0, 1), 6.2), False)
sketch4.addGeometry(Part.Circle(Vector(74.5, 68.9, 0), Vector(0, 0, 1), 3.9), False)
sketch4.addGeometry(Part.Circle(Vector(87.7, 68.9, 0), Vector(0, 0, 1), 3.9), False)
sketch4.addGeometry(Part.Circle(Vector(100.9, 68.9, 0), Vector(0, 0, 1), 3.9), False)
sketch4.addGeometry(Part.Circle(Vector(114.1, 68.9, 0), Vector(0, 0, 1), 3.9), False)
sketch4.addGeometry(Part.Circle(Vector(126.5, 29.9, 0), Vector(0, 0, 1), 6.2), False)
sketch4.addGeometry(Part.Circle(Vector(126.5, 13.7, 0), Vector(0, 0, 1), 6.2), False)
sketch4.addGeometry(Part.Circle(Vector(114.1, 7.1, 0), Vector(0, 0, 1), 3.9), False)
sketch4.addGeometry(Part.Circle(Vector(100.9, 7.1, 0), Vector(0, 0, 1), 3.9), False)
sketch4.addGeometry(Part.Circle(Vector(87.7, 7.1, 0), Vector(0, 0, 1), 3.9), False)
sketch4.addGeometry(Part.Circle(Vector(74.5, 7.1, 0), Vector(0, 0, 1), 3.9), False)
sketch4.addGeometry(Part.Circle(Vector(61.4, 7.1, 0), Vector(0, 0, 1), 3.9), False)
sketch4.addGeometry(Part.Circle(Vector(48.2, 7.1, 0), Vector(0, 0, 1), 3.9), False)
sketch4.addGeometry(Part.Circle(Vector(35, 7.1, 0), Vector(0, 0, 1), 3.9), False)
sketch4.addGeometry(Part.Circle(Vector(21.8, 7.1, 0), Vector(0, 0, 1), 3.9), False)
sketch4.addGeometry(Part.Circle(Vector(9.4, 13.7, 0), Vector(0, 0, 1), 6.2), False)
sketch4.addGeometry(Part.Circle(Vector(9.4, 29.9, 0), Vector(0, 0, 1), 6.2), False)
sketch4.addConstraint(Sketcher.Constraint("Equal", 0, 1))
sketch4.addConstraint(Sketcher.Constraint("Equal", 2, 3))
sketch4.addConstraint(Sketcher.Constraint("Equal", 3, 4))
sketch4.addConstraint(Sketcher.Constraint("Equal", 4, 5))
sketch4.addConstraint(Sketcher.Constraint("Equal", 1, 6))
sketch4.addConstraint(Sketcher.Constraint("Equal", 6, 7))
sketch4.addConstraint(Sketcher.Constraint("Equal", 5, 8))
sketch4.addConstraint(Sketcher.Constraint("Equal", 8, 9))
sketch4.addConstraint(Sketcher.Constraint("Equal", 9, 10))
sketch4.addConstraint(Sketcher.Constraint("Equal", 10, 11))
sketch4.addConstraint(Sketcher.Constraint("Equal", 7, 12))
sketch4.addConstraint(Sketcher.Constraint("Equal", 12, 13))
sketch4.addConstraint(Sketcher.Constraint("Equal", 11, 14))
sketch4.addConstraint(Sketcher.Constraint("Equal", 14, 15))
sketch4.addConstraint(Sketcher.Constraint("Equal", 15, 16))
sketch4.addConstraint(Sketcher.Constraint("Equal", 16, 17))
sketch4.addConstraint(Sketcher.Constraint("Equal", 17, 18))
sketch4.addConstraint(Sketcher.Constraint("Equal", 18, 19))
sketch4.addConstraint(Sketcher.Constraint("Equal", 19, 20))
sketch4.addConstraint(Sketcher.Constraint("Equal", 20, 21))
sketch4.addConstraint(Sketcher.Constraint("Equal", 13, 22))
sketch4.addConstraint(Sketcher.Constraint("Equal", 22, 23))
sketch4.addConstraint(Sketcher.Constraint("Horizontal", 2, 3, 3, 3))
sketch4.addConstraint(Sketcher.Constraint("Horizontal", 3, 3, 4, 3))
sketch4.addConstraint(Sketcher.Constraint("Horizontal", 4, 3, 5, 3))
sketch4.addConstraint(Sketcher.Constraint("Horizontal", 1, 3, 6, 3))
sketch4.addConstraint(Sketcher.Constraint("Horizontal", 0, 3, 7, 3))
sketch4.addConstraint(Sketcher.Constraint("Horizontal", 5, 3, 8, 3))
sketch4.addConstraint(Sketcher.Constraint("Horizontal", 8, 3, 9, 3))
sketch4.addConstraint(Sketcher.Constraint("Horizontal", 9, 3, 10, 3))
sketch4.addConstraint(Sketcher.Constraint("Horizontal", 10, 3, 11, 3))
sketch4.addConstraint(Sketcher.Constraint("Horizontal", 14, 3, 15, 3))
sketch4.addConstraint(Sketcher.Constraint("Horizontal", 15, 3, 16, 3))
sketch4.addConstraint(Sketcher.Constraint("Horizontal", 16, 3, 17, 3))
sketch4.addConstraint(Sketcher.Constraint("Horizontal", 17, 3, 18, 3))
sketch4.addConstraint(Sketcher.Constraint("Horizontal", 18, 3, 19, 3))
sketch4.addConstraint(Sketcher.Constraint("Horizontal", 19, 3, 20, 3))
sketch4.addConstraint(Sketcher.Constraint("Horizontal", 20, 3, 21, 3))
sketch4.addConstraint(Sketcher.Constraint("Horizontal", 13, 3, 22, 3))
sketch4.addConstraint(Sketcher.Constraint("Horizontal", 12, 3, 23, 3))
sketch4.addConstraint(Sketcher.Constraint("Vertical", 0, 3, 1, 3))
sketch4.addConstraint(Sketcher.Constraint("Vertical", 6, 3, 7, 3))
sketch4.addConstraint(Sketcher.Constraint("Vertical", 7, 3, 12, 3))
sketch4.addConstraint(Sketcher.Constraint("Vertical", 12, 3, 13, 3))
sketch4.addConstraint(Sketcher.Constraint("Vertical", 11, 3, 14, 3))
sketch4.addConstraint(Sketcher.Constraint("Vertical", 10, 3, 15, 3))
sketch4.addConstraint(Sketcher.Constraint("Vertical", 9, 3, 16, 3))
sketch4.addConstraint(Sketcher.Constraint("Vertical", 8, 3, 17, 3))
sketch4.addConstraint(Sketcher.Constraint("Vertical", 5, 3, 18, 3))
sketch4.addConstraint(Sketcher.Constraint("Vertical", 4, 3, 19, 3))
sketch4.addConstraint(Sketcher.Constraint("Vertical", 3, 3, 20, 3))
sketch4.addConstraint(Sketcher.Constraint("Vertical", 2, 3, 21, 3))
sketch4.addConstraint(Sketcher.Constraint("Vertical", 1, 3, 22, 3))
sketch4.addConstraint(Sketcher.Constraint("Vertical", 22, 3, 23, 3))
sketch4.addConstraint(Sketcher.Constraint("Diameter", 0, Q("0.4875 in")))
sketch4.addConstraint(Sketcher.Constraint("Diameter", 2, Q("0.3075 in")))
sketch4.addConstraint(Sketcher.Constraint("DistanceX", 1, 3, 6, 3, Q("4.6125 in")))
sketch4.addConstraint(Sketcher.Constraint("DistanceY", 14, 3, 11, 3, Q("2.4325 in")))
sketch4.addConstraint(Sketcher.Constraint("DistanceX", -1, 1, 3, 3, 34.9999))
sketch4.addConstraint(Sketcher.Constraint("DistanceX", -1, 1, 10, 3, 100.8901))
sketch4.addConstraint(Sketcher.Constraint("DistanceX", -1, 1, 0, 3, 9.36625))
sketch4.addConstraint(Sketcher.Constraint("DistanceX", -1, 1, 2, 3, 21.82186))
sketch4.addConstraint(Sketcher.Constraint("DistanceY", -1, 1, 2, 3, 68.86575))
sketch4.addConstraint(Sketcher.Constraint("DistanceX", -1, 1, 4, 3, 48.17794))
sketch4.addConstraint(Sketcher.Constraint("DistanceX", -1, 1, 5, 3, 61.35598))
sketch4.addConstraint(Sketcher.Constraint("DistanceX", -1, 1, 8, 3, 74.53402))
sketch4.addConstraint(Sketcher.Constraint("DistanceX", -1, 1, 9, 3, 87.71206))
sketch4.addConstraint(Sketcher.Constraint("DistanceX", -1, 1, 11, 3, 114.06814))
sketch4.addConstraint(Sketcher.Constraint("DistanceY", 1, 3, 0, 3, 16.190292))
sketch4.addConstraint(Sketcher.Constraint("DistanceY", 12, 3, 6, 3, 16.190292))
sketch4.addConstraint(Sketcher.Constraint("DistanceY", 13, 3, 12, 3, 16.190292))
sketch4.addConstraint(Sketcher.Constraint("DistanceY", 13, 3, 11, 3, 55.178188))
pocket2 = body.newObject("PartDesign::Pocket", "Pocket001")
pocket2.Profile = sketch4
pocket2.Type = "ThroughAll"
pocket2.Reversed = True

doc.recompute()
